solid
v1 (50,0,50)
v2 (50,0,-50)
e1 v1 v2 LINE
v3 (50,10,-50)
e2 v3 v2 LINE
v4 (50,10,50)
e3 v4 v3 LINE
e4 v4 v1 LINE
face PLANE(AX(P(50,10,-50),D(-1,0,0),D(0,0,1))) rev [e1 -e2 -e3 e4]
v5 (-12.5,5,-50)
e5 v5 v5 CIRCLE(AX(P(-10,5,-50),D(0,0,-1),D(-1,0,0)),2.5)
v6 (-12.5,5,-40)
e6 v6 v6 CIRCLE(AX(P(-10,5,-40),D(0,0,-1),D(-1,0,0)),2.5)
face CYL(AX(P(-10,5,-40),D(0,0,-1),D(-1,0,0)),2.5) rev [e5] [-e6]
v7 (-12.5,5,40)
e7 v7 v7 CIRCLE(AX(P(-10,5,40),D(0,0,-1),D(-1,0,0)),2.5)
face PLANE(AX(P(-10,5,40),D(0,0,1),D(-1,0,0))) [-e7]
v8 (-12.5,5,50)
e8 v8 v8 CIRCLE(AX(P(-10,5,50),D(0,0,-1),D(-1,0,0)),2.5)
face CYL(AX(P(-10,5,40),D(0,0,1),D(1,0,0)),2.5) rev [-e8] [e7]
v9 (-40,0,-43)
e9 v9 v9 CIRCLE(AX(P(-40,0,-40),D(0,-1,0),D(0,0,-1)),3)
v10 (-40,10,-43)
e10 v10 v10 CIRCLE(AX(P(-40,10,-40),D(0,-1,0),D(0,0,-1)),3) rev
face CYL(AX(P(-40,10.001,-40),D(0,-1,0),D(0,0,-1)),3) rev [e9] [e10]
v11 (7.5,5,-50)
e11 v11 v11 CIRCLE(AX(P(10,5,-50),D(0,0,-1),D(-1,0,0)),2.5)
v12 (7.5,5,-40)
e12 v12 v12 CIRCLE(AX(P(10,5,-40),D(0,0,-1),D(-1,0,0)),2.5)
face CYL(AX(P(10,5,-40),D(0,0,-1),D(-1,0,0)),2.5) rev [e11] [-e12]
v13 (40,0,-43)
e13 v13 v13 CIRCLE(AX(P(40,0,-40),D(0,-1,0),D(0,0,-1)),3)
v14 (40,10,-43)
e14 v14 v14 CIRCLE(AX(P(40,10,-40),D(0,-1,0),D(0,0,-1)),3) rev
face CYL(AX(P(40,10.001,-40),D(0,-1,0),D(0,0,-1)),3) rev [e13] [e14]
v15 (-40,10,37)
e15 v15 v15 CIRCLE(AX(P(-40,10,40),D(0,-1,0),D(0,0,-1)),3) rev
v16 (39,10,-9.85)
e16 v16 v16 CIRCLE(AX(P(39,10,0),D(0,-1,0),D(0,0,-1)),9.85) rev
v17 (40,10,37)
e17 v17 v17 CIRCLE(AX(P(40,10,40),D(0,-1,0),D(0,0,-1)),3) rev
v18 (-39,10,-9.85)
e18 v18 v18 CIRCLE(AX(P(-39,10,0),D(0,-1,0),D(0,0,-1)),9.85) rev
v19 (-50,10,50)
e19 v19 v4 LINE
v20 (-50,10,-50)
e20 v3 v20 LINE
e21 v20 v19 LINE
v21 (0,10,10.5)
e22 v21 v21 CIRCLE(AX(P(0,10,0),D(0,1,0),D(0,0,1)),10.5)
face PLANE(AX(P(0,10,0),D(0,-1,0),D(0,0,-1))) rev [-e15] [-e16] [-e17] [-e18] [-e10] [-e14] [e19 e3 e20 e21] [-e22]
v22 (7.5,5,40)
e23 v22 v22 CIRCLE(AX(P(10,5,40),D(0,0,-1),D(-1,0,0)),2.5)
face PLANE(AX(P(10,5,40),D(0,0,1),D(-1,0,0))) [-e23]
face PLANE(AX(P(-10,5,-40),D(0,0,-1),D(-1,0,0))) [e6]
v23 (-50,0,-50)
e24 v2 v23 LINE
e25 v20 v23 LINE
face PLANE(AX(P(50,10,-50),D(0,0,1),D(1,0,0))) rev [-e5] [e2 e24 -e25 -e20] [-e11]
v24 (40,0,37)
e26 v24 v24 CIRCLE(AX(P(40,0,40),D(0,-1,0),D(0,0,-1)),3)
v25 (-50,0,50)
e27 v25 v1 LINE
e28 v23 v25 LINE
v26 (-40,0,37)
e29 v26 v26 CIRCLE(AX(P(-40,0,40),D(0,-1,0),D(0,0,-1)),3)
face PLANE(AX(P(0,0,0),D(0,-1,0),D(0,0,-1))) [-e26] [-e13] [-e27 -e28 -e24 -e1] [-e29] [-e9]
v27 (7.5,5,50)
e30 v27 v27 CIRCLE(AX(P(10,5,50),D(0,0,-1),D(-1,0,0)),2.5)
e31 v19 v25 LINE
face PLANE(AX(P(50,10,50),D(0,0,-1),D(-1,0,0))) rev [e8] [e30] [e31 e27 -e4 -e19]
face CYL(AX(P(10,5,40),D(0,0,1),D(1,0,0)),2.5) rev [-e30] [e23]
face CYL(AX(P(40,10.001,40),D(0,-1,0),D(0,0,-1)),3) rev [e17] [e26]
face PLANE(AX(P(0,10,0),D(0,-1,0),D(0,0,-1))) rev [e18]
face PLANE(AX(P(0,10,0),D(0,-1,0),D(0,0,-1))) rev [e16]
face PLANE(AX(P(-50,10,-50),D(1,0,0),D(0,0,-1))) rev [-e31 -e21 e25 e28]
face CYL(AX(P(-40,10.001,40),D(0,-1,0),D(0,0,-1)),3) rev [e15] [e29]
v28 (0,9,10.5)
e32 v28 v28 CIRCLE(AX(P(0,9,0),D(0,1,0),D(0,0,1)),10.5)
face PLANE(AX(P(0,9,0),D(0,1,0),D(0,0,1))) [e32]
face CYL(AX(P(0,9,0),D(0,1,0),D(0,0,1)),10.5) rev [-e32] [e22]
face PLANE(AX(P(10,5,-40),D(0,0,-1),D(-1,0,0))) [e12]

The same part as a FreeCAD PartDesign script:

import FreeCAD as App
import Part
import Sketcher
Q = App.Units.Quantity


def add_polygon(sketch, points):
    """Adds a closed chain of lines whose ends are joined by coincident constraints."""
    first, n = sketch.GeometryCount, len(points)
    for a, b in zip(points, points[1:] + points[:1]):
        sketch.addGeometry(Part.LineSegment(App.Vector(*a, 0), App.Vector(*b, 0)), False)
    for i in range(n):
        sketch.addConstraint(Sketcher.Constraint("Coincident", first + i, 2, first + (i + 1) % n, 1))

doc = App.newDocument("Part")
body = doc.addObject("PartDesign::Body", "Body")

# Sketch on XZ plane
sketch1 = doc.addObject("Sketcher::SketchObject", "Sketch")
body.addObject(sketch1)
sketch1.AttachmentSupport = (doc.XZ_Plane, [""])
sketch1.MapMode = "FlatFace"
add_polygon(sketch1, [(-50, -50), (-50, 50), (50, 50), (50, -50)])  # lines 0-3
sketch1.addConstraint([
    Sketcher.Constraint("Vertical", 0),
    Sketcher.Constraint("Horizontal", 1),
    Sketcher.Constraint("Vertical", 2),
    Sketcher.Constraint("Horizontal", 3),
    Sketcher.Constraint("Symmetric", 0, 2, 2, 2, -1, 1),
    Sketcher.Constraint("Equal", 3, 0),
    Sketcher.Constraint("DistanceX", 1, 1, 1, 2, Q("100 mm")),
])
pad1 = doc.addObject("PartDesign::Pad", "Pad")
body.addObject(pad1)
pad1.Profile = sketch1
pad1.Length = 10
pad1.Reversed = True

# Sketch on XZ plane
sketch2 = doc.addObject("Sketcher::SketchObject", "Sketch001")
body.addObject(sketch2)
sketch2.AttachmentSupport = (doc.XZ_Plane, [""])
sketch2.MapMode = "FlatFace"
sketch2.AttachmentOffset = App.Placement(App.Vector(0, 0, -10), App.Rotation())
sketch2.addGeometry(Part.Circle(App.Vector(0, 0, 0), App.Vector(0, 0, 1), 10), False)
sketch2.addConstraint([
    Sketcher.Constraint("Coincident", 0, 3, -1, 1),
    Sketcher.Constraint("Diameter", 0, Q("21 mm")),
])
pocket1 = doc.addObject("PartDesign::Pocket", "Pocket")
body.addObject(pocket1)
pocket1.Profile = sketch2
pocket1.Length = 1
pocket1.Reversed = True

# Sketch on XZ plane
sketch3 = doc.addObject("Sketcher::SketchObject", "Sketch002")
body.addObject(sketch3)
sketch3.AttachmentSupport = (doc.XZ_Plane, [""])
sketch3.MapMode = "FlatFace"
sketch3.addGeometry(Part.Circle(App.Vector(-40, 40, 0), App.Vector(0, 0, 1), 3), False)
sketch3.addConstraint([
    Sketcher.Constraint("Diameter", 0, Q("6 mm")),
    Sketcher.Constraint("DistanceX", 0, 3, -1, 1, Q("40 mm")),
    Sketcher.Constraint("DistanceY", -1, 1, 0, 3, Q("40 mm")),
])
pocket2 = doc.addObject("PartDesign::Pocket", "Pocket001")
body.addObject(pocket2)
pocket2.Profile = sketch3
pocket2.Type = "UpToFirst"

# Sketch on XZ plane
sketch4 = doc.addObject("Sketcher::SketchObject", "Sketch003")
body.addObject(sketch4)
sketch4.AttachmentSupport = (doc.XZ_Plane, [""])
sketch4.MapMode = "FlatFace"
sketch4.addGeometry(Part.Circle(App.Vector(40, 40, 0), App.Vector(0, 0, 1), 3), False)
sketch4.addConstraint([
    Sketcher.Constraint("Diameter", 0, Q("6 mm")),
    Sketcher.Constraint("DistanceX", -1, 1, 0, 3, Q("40 mm")),
    Sketcher.Constraint("DistanceY", -1, 1, 0, 3, Q("40 mm")),
])
pocket3 = doc.addObject("PartDesign::Pocket", "Pocket002")
body.addObject(pocket3)
pocket3.Profile = sketch4
pocket3.Type = "UpToFirst"

# Sketch on XZ plane
sketch5 = doc.addObject("Sketcher::SketchObject", "Sketch004")
body.addObject(sketch5)
sketch5.AttachmentSupport = (doc.XZ_Plane, [""])
sketch5.MapMode = "FlatFace"
sketch5.addGeometry(Part.Circle(App.Vector(-40, -40, 0), App.Vector(0, 0, 1), 3), False)
sketch5.addConstraint([
    Sketcher.Constraint("Diameter", 0, Q("6 mm")),
    Sketcher.Constraint("DistanceX", 0, 3, -1, 1, Q("40 mm")),
    Sketcher.Constraint("DistanceY", 0, 3, -1, 1, Q("40 mm")),
])
pocket4 = doc.addObject("PartDesign::Pocket", "Pocket003")
body.addObject(pocket4)
pocket4.Profile = sketch5
pocket4.Type = "UpToFirst"

# Sketch on XZ plane
sketch6 = doc.addObject("Sketcher::SketchObject", "Sketch005")
body.addObject(sketch6)
sketch6.AttachmentSupport = (doc.XZ_Plane, [""])
sketch6.MapMode = "FlatFace"
sketch6.addGeometry(Part.Circle(App.Vector(40, -40, 0), App.Vector(0, 0, 1), 3), False)
sketch6.addConstraint([
    Sketcher.Constraint("Diameter", 0, Q("6 mm")),
    Sketcher.Constraint("DistanceX", -1, 1, 0, 3, Q("40 mm")),
    Sketcher.Constraint("DistanceY", 0, 3, -1, 1, Q("40 mm")),
])
pocket5 = doc.addObject("PartDesign::Pocket", "Pocket004")
body.addObject(pocket5)
pocket5.Profile = sketch6
pocket5.Type = "UpToFirst"

# Sketch on XY plane
sketch7 = doc.addObject("Sketcher::SketchObject", "Sketch006")
body.addObject(sketch7)
sketch7.AttachmentSupport = (doc.XY_Plane, [""])
sketch7.MapMode = "FlatFace"
sketch7.AttachmentOffset = App.Placement(App.Vector(0, 0, -50), App.Rotation())
sketch7.addGeometry([
    Part.Circle(App.Vector(10, 5, 0), App.Vector(0, 0, 1), 2.5),
    Part.Circle(App.Vector(-10, 5, 0), App.Vector(0, 0, 1), 2.5),
], False)
sketch7.addConstraint([
    Sketcher.Constraint("Equal", 0, 1),
    Sketcher.Constraint("Symmetric", 0, 3, 1, 3, -2),
    Sketcher.Constraint("Diameter", 0, Q("5 mm")),
    Sketcher.Constraint("DistanceX", -1, 1, 0, 3, Q("10 mm")),
    Sketcher.Constraint("DistanceY", -1, 1, 0, 3, Q("5 mm")),
])
pocket6 = doc.addObject("PartDesign::Pocket", "Pocket005")
body.addObject(pocket6)
pocket6.Profile = sketch7
pocket6.Length = 10
pocket6.Reversed = True
doc.recompute()

mirrored = doc.addObject("PartDesign::Mirrored", "Mirrored")
body.addObject(mirrored)
mirrored.Originals = [pocket6]
mirrored.MirrorPlane = (doc.XY_Plane, [""])
body.Tip = mirrored

doc.recompute()
